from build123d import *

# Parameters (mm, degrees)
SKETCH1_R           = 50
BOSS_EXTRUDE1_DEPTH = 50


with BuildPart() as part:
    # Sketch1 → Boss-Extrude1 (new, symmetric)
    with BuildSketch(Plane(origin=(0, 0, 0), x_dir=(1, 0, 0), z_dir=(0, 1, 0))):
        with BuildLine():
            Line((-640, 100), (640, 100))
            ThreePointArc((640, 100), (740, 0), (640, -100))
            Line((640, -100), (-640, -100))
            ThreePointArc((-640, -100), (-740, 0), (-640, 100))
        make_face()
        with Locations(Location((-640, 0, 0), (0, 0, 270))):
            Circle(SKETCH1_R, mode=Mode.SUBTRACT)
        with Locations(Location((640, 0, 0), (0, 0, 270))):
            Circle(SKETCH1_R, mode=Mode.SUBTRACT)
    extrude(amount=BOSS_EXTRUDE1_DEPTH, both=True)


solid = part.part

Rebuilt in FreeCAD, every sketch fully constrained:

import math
import FreeCAD as App
import Part
import Sketcher

doc = App.newDocument("Part")
body = doc.addObject("PartDesign::Body", "Body")

sketch1 = body.newObject("Sketcher::SketchObject", "Sketch")
sketch1.AttachmentSupport = (doc.getObject("XZ_Plane"), [""])
sketch1.MapMode = "FlatFace"
sketch1.addGeometry([
    Part.LineSegment(App.Vector(640, -100, 0), App.Vector(-640, -100, 0)),
    Part.ArcOfCircle(Part.Circle(App.Vector(-640, 0, 0), App.Vector(0, 0, 1), 100), math.radians(90), math.radians(270)),
    Part.LineSegment(App.Vector(-640, 100, 0), App.Vector(640, 100, 0)),
    Part.ArcOfCircle(Part.Circle(App.Vector(640, 0, 0), App.Vector(0, 0, 1), 100), math.radians(-90), math.radians(90)),
    Part.Circle(App.Vector(640, 0, 0), App.Vector(0, 0, 1), 50),
    Part.Circle(App.Vector(-640, 0, 0), App.Vector(0, 0, 1), 50),
], False)
sketch1.addConstraint([
    Sketcher.Constraint("Tangent", 0, 2, 1, 2),
    Sketcher.Constraint("Tangent", 1, 1, 2, 1),
    Sketcher.Constraint("Tangent", 2, 2, 3, 2),
    Sketcher.Constraint("Tangent", 3, 1, 0, 1),
    Sketcher.Constraint("Horizontal", 0),
    Sketcher.Constraint("Horizontal", 2),
    Sketcher.Constraint("Coincident", 4, 3, 3, 3),
    Sketcher.Constraint("Coincident", 5, 3, 1, 3),
    Sketcher.Constraint("Equal", 4, 5),
    Sketcher.Constraint("Symmetric", 1, 3, 3, 3, -1, 1),
    Sketcher.Constraint("Diameter", 4, 100.0),
    Sketcher.Constraint("Radius", 1, 100.0),
    Sketcher.Constraint("DistanceX", 0, 2, 0, 1, 1280.0),
])
pad1 = body.newObject("PartDesign::Pad", "Pad")
pad1.Profile = sketch1
pad1.Length = 100
pad1.Midplane = True

doc.recompute()
